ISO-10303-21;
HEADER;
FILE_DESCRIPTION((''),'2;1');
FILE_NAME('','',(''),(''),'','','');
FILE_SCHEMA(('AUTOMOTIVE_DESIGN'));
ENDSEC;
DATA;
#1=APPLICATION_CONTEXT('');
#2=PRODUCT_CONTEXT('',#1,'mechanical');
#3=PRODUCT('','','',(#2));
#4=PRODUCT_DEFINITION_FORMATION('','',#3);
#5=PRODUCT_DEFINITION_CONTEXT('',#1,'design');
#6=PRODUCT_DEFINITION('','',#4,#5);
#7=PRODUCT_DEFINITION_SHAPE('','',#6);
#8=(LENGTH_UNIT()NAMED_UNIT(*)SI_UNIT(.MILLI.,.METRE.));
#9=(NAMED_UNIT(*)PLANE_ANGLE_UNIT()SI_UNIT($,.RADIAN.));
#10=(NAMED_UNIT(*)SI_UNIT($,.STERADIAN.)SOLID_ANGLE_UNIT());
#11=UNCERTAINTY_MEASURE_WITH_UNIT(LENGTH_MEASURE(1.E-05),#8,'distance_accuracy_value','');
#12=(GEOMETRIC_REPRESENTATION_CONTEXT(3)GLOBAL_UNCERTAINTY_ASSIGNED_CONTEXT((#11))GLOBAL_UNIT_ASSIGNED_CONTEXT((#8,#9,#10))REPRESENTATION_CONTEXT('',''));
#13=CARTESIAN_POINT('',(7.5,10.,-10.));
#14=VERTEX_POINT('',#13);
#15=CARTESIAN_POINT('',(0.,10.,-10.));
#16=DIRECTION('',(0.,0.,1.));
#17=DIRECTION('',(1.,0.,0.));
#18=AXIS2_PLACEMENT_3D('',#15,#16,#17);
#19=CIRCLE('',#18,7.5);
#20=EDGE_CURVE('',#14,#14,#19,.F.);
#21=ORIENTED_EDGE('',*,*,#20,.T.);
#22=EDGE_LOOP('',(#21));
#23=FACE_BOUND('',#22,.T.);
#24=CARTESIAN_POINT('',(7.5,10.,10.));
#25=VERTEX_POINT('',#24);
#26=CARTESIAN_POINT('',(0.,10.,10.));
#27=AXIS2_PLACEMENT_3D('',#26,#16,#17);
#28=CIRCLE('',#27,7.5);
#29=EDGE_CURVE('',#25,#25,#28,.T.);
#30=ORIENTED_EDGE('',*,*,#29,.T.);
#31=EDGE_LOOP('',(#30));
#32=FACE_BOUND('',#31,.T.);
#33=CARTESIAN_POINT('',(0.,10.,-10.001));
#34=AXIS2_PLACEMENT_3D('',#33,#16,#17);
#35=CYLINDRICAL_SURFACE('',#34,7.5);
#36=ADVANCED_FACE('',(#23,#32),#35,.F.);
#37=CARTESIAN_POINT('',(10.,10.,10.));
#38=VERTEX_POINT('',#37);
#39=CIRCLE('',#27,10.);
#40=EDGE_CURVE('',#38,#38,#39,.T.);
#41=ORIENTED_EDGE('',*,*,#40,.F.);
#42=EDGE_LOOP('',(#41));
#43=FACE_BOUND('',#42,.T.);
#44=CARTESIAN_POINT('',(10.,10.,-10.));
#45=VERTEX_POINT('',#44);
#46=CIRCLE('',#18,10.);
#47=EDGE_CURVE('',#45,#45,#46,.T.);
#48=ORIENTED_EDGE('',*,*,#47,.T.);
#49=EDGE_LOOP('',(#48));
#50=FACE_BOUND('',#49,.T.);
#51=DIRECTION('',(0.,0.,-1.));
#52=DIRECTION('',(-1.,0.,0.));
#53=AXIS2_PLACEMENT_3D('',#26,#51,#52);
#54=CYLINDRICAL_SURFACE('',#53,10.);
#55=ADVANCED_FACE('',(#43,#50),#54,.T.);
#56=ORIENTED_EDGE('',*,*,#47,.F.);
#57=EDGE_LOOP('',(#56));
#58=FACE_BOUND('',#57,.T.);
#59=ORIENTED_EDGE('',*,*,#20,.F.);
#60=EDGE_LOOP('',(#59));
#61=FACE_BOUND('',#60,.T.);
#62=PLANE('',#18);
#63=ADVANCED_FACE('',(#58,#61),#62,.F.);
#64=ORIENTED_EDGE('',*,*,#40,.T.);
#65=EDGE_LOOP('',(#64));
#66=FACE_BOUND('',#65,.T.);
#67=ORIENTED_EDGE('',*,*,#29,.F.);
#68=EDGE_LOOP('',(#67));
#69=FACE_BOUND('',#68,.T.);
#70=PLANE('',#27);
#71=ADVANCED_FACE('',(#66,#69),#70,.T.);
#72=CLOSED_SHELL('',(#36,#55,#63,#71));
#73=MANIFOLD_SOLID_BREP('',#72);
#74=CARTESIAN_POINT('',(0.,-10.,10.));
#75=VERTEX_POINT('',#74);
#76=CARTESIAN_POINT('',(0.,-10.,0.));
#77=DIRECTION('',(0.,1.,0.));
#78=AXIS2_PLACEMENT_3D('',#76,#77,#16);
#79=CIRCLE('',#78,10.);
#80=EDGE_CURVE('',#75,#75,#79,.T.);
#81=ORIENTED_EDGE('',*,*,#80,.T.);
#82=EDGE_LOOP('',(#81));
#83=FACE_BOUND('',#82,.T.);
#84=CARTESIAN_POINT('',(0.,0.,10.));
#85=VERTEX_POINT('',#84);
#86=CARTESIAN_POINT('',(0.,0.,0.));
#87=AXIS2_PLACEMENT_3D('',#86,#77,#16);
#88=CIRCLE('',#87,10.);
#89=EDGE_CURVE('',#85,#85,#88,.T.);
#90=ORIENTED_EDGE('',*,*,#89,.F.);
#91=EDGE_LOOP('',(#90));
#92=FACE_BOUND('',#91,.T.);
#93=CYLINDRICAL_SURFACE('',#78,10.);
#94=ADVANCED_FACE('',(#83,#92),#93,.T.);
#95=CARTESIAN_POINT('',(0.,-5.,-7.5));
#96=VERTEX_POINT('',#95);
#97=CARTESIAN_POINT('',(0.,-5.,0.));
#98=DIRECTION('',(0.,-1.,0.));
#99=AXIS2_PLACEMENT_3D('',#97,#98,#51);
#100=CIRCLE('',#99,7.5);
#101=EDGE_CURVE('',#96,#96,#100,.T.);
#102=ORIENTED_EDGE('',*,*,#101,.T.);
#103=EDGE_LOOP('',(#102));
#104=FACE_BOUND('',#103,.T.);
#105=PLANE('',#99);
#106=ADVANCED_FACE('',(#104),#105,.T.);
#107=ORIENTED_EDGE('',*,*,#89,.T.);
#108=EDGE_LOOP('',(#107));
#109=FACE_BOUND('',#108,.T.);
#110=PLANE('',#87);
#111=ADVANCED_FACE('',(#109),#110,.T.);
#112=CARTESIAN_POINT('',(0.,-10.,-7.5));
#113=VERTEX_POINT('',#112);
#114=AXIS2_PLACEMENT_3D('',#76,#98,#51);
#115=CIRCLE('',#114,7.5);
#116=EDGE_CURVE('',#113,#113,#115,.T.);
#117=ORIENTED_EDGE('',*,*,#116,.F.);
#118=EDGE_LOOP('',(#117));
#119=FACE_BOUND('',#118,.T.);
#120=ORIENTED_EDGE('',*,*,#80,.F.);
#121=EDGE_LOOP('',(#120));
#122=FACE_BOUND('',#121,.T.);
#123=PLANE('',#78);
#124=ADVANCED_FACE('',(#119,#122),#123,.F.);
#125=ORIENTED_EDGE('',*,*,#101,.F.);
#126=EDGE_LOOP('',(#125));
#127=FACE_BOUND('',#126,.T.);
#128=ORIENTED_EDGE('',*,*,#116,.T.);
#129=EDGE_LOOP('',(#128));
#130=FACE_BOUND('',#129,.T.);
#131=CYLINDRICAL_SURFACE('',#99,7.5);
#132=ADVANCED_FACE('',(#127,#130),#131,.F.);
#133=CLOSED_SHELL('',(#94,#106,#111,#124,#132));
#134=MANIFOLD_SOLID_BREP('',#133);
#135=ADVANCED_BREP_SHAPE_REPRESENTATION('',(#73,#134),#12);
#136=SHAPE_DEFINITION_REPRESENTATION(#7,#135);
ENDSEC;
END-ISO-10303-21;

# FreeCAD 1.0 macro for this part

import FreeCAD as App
import Part
import Sketcher
Q = App.Units.Quantity

doc = App.newDocument("Part")
body = doc.addObject("PartDesign::Body", "Body")

sketch1 = body.newObject("Sketcher::SketchObject", "Sketch")
sketch1.AttachmentSupport = (doc.getObject("XZ_Plane"), [""])
sketch1.MapMode = "FlatFace"
sketch1.addGeometry(Part.Circle(App.Vector(0, 0, 0), App.Vector(0, 0, 1), 10), False)
sketch1.addConstraint([
    Sketcher.Constraint("Coincident", 0, 3, -1, 1),
    Sketcher.Constraint("Diameter", 0, Q("20 mm")),
])
pad1 = body.newObject("PartDesign::Pad", "Pad")
pad1.Profile = sketch1
pad1.Length = 10

sketch2 = body.newObject("Sketcher::SketchObject", "Sketch001")
sketch2.AttachmentSupport = (doc.getObject("XZ_Plane"), [""])
sketch2.MapMode = "FlatFace"
sketch2.AttachmentOffset = App.Placement(App.Vector(0, 0, 10), App.Rotation())
sketch2.addGeometry(Part.Circle(App.Vector(0, 0, 0), App.Vector(0, 0, 1), 8), False)
sketch2.addConstraint([
    Sketcher.Constraint("Coincident", 0, 3, -1, 1),
    Sketcher.Constraint("Diameter", 0, Q("15 mm")),
])
pocket1 = body.newObject("PartDesign::Pocket", "Pocket")
pocket1.Profile = sketch2
pocket1.Length = 5
body2 = doc.addObject("PartDesign::Body", "Body001")

sketch3 = body2.newObject("Sketcher::SketchObject", "Sketch002")
sketch3.AttachmentSupport = (doc.getObject("XY_Plane001"), [""])
sketch3.MapMode = "FlatFace"
sketch3.addGeometry(Part.Circle(App.Vector(0, 10, 0), App.Vector(0, 0, 1), 10), False)
sketch3.addConstraint([
    Sketcher.Constraint("PointOnObject", 0, 3, -2),
    Sketcher.Constraint("Diameter", 0, Q("20 mm")),
    Sketcher.Constraint("DistanceY", -1, 1, 0, 3, Q("10 mm")),
])
pad2 = body2.newObject("PartDesign::Pad", "Pad001")
pad2.Profile = sketch3
pad2.Length = 20
pad2.Midplane = True

sketch4 = body2.newObject("Sketcher::SketchObject", "Sketch003")
sketch4.AttachmentSupport = (doc.getObject("XY_Plane001"), [""])
sketch4.MapMode = "FlatFace"
sketch4.AttachmentOffset = App.Placement(App.Vector(0, 0, 10), App.Rotation())
sketch4.addGeometry(Part.Circle(App.Vector(0, 10, 0), App.Vector(0, 0, 1), 8), False)
sketch4.addConstraint([
    Sketcher.Constraint("PointOnObject", 0, 3, -2),
    Sketcher.Constraint("Diameter", 0, Q("15 mm")),
    Sketcher.Constraint("DistanceY", -1, 1, 0, 3, Q("10 mm")),
])
pocket2 = body2.newObject("PartDesign::Pocket", "Pocket001")
pocket2.Profile = sketch4
pocket2.Length = 20

doc.recompute()
